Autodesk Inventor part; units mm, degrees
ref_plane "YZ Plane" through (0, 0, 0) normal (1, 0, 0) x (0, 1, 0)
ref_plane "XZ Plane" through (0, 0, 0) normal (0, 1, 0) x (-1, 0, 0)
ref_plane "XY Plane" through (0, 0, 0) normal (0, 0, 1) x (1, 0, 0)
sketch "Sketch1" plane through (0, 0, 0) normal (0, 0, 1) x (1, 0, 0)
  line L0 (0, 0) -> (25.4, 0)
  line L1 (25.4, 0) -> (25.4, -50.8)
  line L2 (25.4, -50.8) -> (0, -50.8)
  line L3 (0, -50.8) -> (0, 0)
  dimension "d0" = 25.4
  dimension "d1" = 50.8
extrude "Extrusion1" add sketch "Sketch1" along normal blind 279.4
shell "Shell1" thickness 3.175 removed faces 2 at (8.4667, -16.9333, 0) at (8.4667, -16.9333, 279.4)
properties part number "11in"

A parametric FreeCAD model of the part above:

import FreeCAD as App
import Part
import Sketcher
Q = App.Units.Quantity


def faces_at(feature, points):
    """Names of the faces that lie closest to the given points."""
    faces = feature.Shape.Faces
    near = lambda p: min(range(len(faces)), key=lambda i: faces[i].distToShape(Part.Vertex(*p))[0])
    return sorted({f"Face{near(p) + 1}" for p in points})

doc = App.newDocument("Part")
body = doc.addObject("PartDesign::Body", "Body")

# Sketch on XY plane
sketch1 = doc.addObject("Sketcher::SketchObject", "Sketch")
body.addObject(sketch1)
sketch1.AttachmentSupport = (doc.XY_Plane, [""])
sketch1.MapMode = "FlatFace"
sketch1.addGeometry([
    Part.LineSegment(App.Vector(25.4, 0, 0), App.Vector(0, 0, 0)),
    Part.LineSegment(App.Vector(0, 0, 0), App.Vector(0, -50.8, 0)),
    Part.LineSegment(App.Vector(0, -50.8, 0), App.Vector(25.4, -50.8, 0)),
    Part.LineSegment(App.Vector(25.4, -50.8, 0), App.Vector(25.4, 0, 0)),
], False)
sketch1.addConstraint([
    Sketcher.Constraint("Coincident", 0, 2, 1, 1),
    Sketcher.Constraint("Coincident", 1, 2, 2, 1),
    Sketcher.Constraint("Coincident", 2, 2, 3, 1),
    Sketcher.Constraint("Coincident", 3, 2, 0, 1),
    Sketcher.Constraint("Horizontal", 0),
    Sketcher.Constraint("Vertical", 1),
    Sketcher.Constraint("Horizontal", 2),
    Sketcher.Constraint("Vertical", 3),
    Sketcher.Constraint("Coincident", 0, 2, -1, 1),
    Sketcher.Constraint("DistanceX", 0, 2, 0, 1, Q("1 in")),
    Sketcher.Constraint("DistanceY", 1, 2, 1, 1, Q("2 in")),
])
pad1 = doc.addObject("PartDesign::Pad", "Pad")
body.addObject(pad1)
pad1.Profile = sketch1
pad1.Length = Q("11 in")
doc.recompute()

thickness = doc.addObject("PartDesign::Thickness", "Thickness")
body.addObject(thickness)
thickness.Base = (pad1, faces_at(pad1, [(8.467, -16.933, 0), (8.467, -16.933, 279.4)]))
thickness.Value = Q("0.125 in")
thickness.Reversed = True
thickness.Join = "Intersection"

doc.recompute()
